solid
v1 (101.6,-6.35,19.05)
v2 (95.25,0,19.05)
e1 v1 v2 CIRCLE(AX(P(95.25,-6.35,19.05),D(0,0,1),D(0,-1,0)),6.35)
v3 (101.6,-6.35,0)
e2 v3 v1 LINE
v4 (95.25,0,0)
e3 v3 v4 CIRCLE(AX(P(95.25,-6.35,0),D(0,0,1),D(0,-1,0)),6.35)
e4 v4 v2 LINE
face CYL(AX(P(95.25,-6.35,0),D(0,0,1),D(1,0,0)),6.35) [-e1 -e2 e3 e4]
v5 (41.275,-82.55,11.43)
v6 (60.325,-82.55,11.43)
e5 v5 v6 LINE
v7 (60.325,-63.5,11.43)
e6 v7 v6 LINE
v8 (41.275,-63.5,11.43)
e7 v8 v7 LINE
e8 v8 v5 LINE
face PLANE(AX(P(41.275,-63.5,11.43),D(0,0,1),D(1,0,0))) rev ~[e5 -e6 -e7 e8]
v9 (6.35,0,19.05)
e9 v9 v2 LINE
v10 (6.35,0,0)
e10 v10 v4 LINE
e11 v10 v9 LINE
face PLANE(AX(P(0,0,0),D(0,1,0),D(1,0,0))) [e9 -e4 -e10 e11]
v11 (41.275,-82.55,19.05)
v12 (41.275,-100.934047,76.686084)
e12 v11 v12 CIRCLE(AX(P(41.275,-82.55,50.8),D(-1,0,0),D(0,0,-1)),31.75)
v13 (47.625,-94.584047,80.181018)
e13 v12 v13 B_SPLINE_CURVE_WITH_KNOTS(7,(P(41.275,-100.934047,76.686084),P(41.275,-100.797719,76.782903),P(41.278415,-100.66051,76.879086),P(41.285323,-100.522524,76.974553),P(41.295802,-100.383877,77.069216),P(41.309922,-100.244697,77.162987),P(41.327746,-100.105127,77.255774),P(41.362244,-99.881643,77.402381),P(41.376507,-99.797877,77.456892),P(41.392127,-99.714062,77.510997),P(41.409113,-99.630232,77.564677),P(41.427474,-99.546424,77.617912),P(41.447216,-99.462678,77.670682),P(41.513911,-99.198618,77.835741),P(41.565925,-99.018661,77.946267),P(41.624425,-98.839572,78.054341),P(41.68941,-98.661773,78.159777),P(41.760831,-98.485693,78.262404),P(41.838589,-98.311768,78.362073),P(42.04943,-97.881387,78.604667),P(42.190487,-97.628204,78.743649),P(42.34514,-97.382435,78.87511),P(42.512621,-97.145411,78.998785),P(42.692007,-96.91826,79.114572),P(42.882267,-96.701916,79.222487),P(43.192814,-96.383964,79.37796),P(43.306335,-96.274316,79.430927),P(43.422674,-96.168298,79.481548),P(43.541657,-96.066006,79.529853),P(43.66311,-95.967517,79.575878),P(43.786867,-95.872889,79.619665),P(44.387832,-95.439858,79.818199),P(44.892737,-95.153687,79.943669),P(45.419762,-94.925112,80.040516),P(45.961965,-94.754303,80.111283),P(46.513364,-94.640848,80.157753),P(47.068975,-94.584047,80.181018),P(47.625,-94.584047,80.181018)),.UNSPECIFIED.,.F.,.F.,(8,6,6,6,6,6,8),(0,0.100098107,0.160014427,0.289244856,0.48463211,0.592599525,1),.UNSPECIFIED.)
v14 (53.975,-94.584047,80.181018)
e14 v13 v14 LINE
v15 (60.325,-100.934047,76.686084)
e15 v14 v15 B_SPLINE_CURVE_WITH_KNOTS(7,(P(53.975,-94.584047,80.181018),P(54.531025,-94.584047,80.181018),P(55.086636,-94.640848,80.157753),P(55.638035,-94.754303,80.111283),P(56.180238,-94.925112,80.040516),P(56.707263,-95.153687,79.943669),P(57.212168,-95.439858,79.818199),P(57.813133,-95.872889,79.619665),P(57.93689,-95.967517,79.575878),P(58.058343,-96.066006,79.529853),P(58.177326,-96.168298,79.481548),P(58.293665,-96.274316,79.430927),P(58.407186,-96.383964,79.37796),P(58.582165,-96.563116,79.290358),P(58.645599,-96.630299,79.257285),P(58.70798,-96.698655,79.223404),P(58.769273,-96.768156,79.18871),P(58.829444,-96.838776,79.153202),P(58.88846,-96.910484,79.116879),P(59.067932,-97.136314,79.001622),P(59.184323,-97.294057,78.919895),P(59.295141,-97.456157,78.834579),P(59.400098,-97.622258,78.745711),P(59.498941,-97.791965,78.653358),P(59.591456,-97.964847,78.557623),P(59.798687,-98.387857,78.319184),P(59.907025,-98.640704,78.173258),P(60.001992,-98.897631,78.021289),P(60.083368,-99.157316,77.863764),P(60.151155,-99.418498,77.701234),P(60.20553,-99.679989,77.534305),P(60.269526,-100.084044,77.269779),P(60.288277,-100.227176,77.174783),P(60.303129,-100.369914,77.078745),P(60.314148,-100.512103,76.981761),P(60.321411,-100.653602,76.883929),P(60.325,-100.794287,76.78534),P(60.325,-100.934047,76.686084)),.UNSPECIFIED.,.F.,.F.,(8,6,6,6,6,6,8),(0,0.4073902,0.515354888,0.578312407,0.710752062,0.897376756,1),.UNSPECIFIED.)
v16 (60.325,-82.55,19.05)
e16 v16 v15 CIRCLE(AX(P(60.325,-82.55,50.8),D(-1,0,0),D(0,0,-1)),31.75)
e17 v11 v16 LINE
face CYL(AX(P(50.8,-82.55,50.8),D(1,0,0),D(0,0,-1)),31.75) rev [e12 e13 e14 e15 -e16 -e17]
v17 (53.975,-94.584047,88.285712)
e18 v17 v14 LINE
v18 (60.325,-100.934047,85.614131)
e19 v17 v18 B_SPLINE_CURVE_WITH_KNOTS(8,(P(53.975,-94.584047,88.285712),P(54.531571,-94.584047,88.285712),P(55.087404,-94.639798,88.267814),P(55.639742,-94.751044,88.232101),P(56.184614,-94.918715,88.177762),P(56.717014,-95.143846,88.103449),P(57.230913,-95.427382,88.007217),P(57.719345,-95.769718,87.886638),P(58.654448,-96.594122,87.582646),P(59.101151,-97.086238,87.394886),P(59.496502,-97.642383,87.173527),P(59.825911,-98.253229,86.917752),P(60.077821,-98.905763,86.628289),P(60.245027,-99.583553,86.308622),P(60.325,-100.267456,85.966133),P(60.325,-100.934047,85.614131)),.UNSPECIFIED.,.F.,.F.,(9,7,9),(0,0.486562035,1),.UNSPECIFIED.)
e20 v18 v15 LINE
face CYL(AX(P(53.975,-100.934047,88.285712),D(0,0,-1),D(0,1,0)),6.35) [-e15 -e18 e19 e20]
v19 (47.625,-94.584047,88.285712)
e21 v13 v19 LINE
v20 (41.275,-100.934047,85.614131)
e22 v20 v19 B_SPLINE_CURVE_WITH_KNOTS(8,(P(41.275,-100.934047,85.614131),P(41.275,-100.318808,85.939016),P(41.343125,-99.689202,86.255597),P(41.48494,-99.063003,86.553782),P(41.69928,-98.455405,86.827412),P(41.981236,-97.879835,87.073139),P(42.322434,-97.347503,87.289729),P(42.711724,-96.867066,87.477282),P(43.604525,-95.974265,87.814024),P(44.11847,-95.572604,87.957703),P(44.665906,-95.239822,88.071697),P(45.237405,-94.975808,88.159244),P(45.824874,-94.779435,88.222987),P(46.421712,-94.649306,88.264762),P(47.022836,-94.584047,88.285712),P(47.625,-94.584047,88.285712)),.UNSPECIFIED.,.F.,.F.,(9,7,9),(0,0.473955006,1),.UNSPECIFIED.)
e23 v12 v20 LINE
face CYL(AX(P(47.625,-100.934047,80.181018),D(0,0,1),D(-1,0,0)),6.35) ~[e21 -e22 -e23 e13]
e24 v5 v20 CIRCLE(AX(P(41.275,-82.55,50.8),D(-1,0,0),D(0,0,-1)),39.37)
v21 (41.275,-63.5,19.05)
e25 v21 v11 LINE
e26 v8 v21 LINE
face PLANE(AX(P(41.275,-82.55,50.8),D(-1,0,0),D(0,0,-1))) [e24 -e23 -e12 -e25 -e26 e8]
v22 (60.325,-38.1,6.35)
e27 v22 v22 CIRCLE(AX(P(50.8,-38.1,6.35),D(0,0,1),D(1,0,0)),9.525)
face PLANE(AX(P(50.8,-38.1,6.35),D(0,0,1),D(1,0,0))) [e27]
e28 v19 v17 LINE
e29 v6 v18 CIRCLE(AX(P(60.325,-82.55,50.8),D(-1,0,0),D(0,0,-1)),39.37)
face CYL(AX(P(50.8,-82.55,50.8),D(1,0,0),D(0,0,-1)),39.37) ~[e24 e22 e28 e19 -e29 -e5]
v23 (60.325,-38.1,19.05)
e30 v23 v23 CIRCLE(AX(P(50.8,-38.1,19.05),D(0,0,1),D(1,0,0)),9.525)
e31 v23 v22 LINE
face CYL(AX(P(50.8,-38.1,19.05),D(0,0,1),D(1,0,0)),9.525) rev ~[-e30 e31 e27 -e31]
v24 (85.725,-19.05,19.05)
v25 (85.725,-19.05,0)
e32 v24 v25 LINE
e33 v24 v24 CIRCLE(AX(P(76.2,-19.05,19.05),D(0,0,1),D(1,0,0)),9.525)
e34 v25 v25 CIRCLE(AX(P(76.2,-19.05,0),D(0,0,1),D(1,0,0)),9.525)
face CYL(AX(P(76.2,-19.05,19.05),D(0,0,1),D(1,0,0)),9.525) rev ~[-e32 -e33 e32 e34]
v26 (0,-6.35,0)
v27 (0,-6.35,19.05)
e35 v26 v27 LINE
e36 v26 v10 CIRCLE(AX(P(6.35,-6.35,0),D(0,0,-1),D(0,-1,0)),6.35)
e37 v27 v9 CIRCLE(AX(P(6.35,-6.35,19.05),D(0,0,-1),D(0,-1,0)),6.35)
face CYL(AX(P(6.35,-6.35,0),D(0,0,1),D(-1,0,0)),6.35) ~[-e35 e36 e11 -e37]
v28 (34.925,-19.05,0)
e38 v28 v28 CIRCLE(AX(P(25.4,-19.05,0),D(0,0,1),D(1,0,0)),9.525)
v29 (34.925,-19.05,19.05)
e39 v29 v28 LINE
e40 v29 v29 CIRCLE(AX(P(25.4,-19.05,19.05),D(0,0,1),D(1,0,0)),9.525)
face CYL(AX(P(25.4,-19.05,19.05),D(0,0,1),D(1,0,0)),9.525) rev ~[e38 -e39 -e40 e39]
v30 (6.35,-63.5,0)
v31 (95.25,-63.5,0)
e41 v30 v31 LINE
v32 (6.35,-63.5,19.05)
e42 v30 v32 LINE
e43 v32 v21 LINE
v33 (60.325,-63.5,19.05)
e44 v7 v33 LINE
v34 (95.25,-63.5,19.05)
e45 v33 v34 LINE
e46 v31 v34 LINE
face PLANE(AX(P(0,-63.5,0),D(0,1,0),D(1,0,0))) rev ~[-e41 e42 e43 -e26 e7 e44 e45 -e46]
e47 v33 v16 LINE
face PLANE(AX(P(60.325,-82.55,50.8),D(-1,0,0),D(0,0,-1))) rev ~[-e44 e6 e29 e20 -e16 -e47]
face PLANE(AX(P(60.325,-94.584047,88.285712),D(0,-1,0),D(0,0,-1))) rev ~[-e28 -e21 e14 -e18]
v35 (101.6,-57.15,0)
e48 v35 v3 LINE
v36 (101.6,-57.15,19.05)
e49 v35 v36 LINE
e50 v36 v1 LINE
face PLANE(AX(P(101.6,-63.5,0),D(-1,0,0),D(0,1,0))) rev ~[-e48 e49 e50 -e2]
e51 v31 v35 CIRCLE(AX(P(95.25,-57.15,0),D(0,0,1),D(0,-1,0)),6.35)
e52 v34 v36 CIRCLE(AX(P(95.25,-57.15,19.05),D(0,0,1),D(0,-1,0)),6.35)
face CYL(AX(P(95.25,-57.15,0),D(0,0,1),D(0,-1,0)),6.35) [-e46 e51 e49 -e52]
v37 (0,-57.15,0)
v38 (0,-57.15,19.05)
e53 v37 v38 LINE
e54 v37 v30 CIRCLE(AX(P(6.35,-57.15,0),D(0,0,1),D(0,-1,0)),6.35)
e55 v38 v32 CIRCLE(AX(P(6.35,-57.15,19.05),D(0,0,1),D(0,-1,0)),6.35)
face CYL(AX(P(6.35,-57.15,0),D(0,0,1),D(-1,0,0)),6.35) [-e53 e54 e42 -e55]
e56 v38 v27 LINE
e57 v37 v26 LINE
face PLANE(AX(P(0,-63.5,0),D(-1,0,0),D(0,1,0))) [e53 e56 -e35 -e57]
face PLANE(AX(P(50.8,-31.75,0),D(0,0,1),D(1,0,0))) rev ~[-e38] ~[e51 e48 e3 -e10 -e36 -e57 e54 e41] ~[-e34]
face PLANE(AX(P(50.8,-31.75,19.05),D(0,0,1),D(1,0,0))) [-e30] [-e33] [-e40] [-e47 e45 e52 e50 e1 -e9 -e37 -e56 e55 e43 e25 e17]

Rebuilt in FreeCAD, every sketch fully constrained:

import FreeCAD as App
import Part
import Sketcher
from FreeCAD import Vector
Q = App.Units.Quantity


def edges_at(feature, points):
    """Names of the edges that pass closest to the given points."""
    edges = feature.Shape.Edges
    near = lambda p: min(range(len(edges)), key=lambda i: edges[i].distToShape(Part.Vertex(*p))[0])
    return sorted({f"Edge{near(p) + 1}" for p in points})

doc = App.newDocument("Part")
body = doc.addObject("PartDesign::Body", "Body")

# Sketch on XY plane
sketch1 = body.newObject("Sketcher::SketchObject", "Sketch")
sketch1.AttachmentSupport = (doc.getObject("XY_Plane"), [""])
sketch1.MapMode = "FlatFace"
sketch1.addGeometry(Part.LineSegment(Vector(0, 0, 0), Vector(0, -64, 0)), False)
sketch1.addGeometry(Part.LineSegment(Vector(0, -64, 0), Vector(102, -64, 0)), False)
sketch1.addGeometry(Part.LineSegment(Vector(102, -64, 0), Vector(102, 0, 0)), False)
sketch1.addGeometry(Part.LineSegment(Vector(102, 0, 0), Vector(0, 0, 0)), False)
sketch1.addConstraint(Sketcher.Constraint("Coincident", 0, 2, 1, 1))
sketch1.addConstraint(Sketcher.Constraint("Coincident", 1, 2, 2, 1))
sketch1.addConstraint(Sketcher.Constraint("Coincident", 2, 2, 3, 1))
sketch1.addConstraint(Sketcher.Constraint("Coincident", 3, 2, 0, 1))
sketch1.addConstraint(Sketcher.Constraint("Vertical", 0))
sketch1.addConstraint(Sketcher.Constraint("Horizontal", 1))
sketch1.addConstraint(Sketcher.Constraint("Vertical", 2))
sketch1.addConstraint(Sketcher.Constraint("Horizontal", 3))
sketch1.addConstraint(Sketcher.Constraint("Coincident", 3, 2, -1, 1))
sketch1.addConstraint(Sketcher.Constraint("DistanceX", 1, 1, 1, 2, Q("4 in")))
sketch1.addConstraint(Sketcher.Constraint("DistanceY", 0, 2, 0, 1, Q("2.5 in")))
pad1 = body.newObject("PartDesign::Pad", "Pad")
pad1.Profile = sketch1
pad1.Length = Q("0.75 in")
doc.recompute()

fillet = body.newObject("PartDesign::Fillet", "Fillet")
fillet.Base = (pad1, edges_at(pad1, [
    (101.6, -63.5, 9.525),
    (101.6, 0, 9.525),
    (0, -63.5, 9.525),
    (0, 0, 9.525),
]))
fillet.Radius = Q("0.25 in")

# Sketch on XY plane
sketch2 = body.newObject("Sketcher::SketchObject", "Sketch001")
sketch2.AttachmentSupport = (doc.getObject("XY_Plane"), [""])
sketch2.MapMode = "FlatFace"
sketch2.AttachmentOffset = App.Placement(Vector(0, 0, 0.75 * 25.4), App.Rotation())
sketch2.addGeometry(Part.Circle(Vector(51, -38, 0), Vector(0, 0, 1), 10), False)
sketch2.addConstraint(Sketcher.Constraint("Diameter", 0, Q("0.75 in")))
sketch2.addConstraint(Sketcher.Constraint("DistanceX", -1, 1, 0, 3, Q("2 in")))
sketch2.addConstraint(Sketcher.Constraint("DistanceY", 0, 3, -1, 1, Q("1.5 in")))
pocket1 = body.newObject("PartDesign::Pocket", "Pocket")
pocket1.Profile = sketch2
pocket1.Length = Q("0.5 in")

# Sketch on XY plane
sketch3 = body.newObject("Sketcher::SketchObject", "Sketch002")
sketch3.AttachmentSupport = (doc.getObject("XY_Plane"), [""])
sketch3.MapMode = "FlatFace"
sketch3.AttachmentOffset = App.Placement(Vector(0, 0, 0.75 * 25.4), App.Rotation())
sketch3.addGeometry(Part.Circle(Vector(25, -19, 0), Vector(0, 0, 1), 10), False)
sketch3.addGeometry(Part.Circle(Vector(76, -19, 0), Vector(0, 0, 1), 10), False)
sketch3.addConstraint(Sketcher.Constraint("Equal", 0, 1))
sketch3.addConstraint(Sketcher.Constraint("Horizontal", 0, 3, 1, 3))
sketch3.addConstraint(Sketcher.Constraint("Diameter", 0, Q("0.75 in")))
sketch3.addConstraint(Sketcher.Constraint("DistanceX", -1, 1, 0, 3, Q("1 in")))
sketch3.addConstraint(Sketcher.Constraint("DistanceX", -1, 1, 1, 3, Q("3 in")))
sketch3.addConstraint(Sketcher.Constraint("DistanceY", 0, 3, -1, 1, Q("0.75 in")))
pocket2 = body.newObject("PartDesign::Pocket", "Pocket001")
pocket2.Profile = sketch3
pocket2.Type = "ThroughAll"

# Sketch on XZ plane
sketch4 = body.newObject("Sketcher::SketchObject", "Sketch003")
sketch4.AttachmentSupport = (doc.getObject("XZ_Plane"), [""])
sketch4.MapMode = "FlatFace"
sketch4.AttachmentOffset = App.Placement(Vector(0, 0, 2.5 * 25.4), App.Rotation())
sketch4.addGeometry(Part.LineSegment(Vector(41, 19, 0), Vector(41, 11, 0)), False)
sketch4.addGeometry(Part.LineSegment(Vector(41, 11, 0), Vector(60, 11, 0)), False)
sketch4.addGeometry(Part.LineSegment(Vector(60, 11, 0), Vector(60, 19, 0)), False)
sketch4.addGeometry(Part.LineSegment(Vector(60, 19, 0), Vector(41, 19, 0)), False)
sketch4.addConstraint(Sketcher.Constraint("Coincident", 0, 2, 1, 1))
sketch4.addConstraint(Sketcher.Constraint("Coincident", 1, 2, 2, 1))
sketch4.addConstraint(Sketcher.Constraint("Coincident", 2, 2, 3, 1))
sketch4.addConstraint(Sketcher.Constraint("Coincident", 3, 2, 0, 1))
sketch4.addConstraint(Sketcher.Constraint("Vertical", 0))
sketch4.addConstraint(Sketcher.Constraint("Horizontal", 1))
sketch4.addConstraint(Sketcher.Constraint("Vertical", 2))
sketch4.addConstraint(Sketcher.Constraint("Horizontal", 3))
sketch4.addConstraint(Sketcher.Constraint("DistanceY", 0, 2, 0, 1, Q("0.3 in")))
sketch4.addConstraint(Sketcher.Constraint("DistanceX", 1, 1, 1, 2, Q("0.75 in")))
sketch4.addConstraint(Sketcher.Constraint("DistanceY", -1, 1, 0, 2, Q("0.45 in")))
sketch4.addConstraint(Sketcher.Constraint("DistanceX", -1, 1, 0, 2, Q("1.625 in")))
pad2 = body.newObject("PartDesign::Pad", "Pad001")
pad2.Profile = sketch4
pad2.Length = Q("0.75 in")

# Sketch on XZ plane
sketch5 = body.newObject("Sketcher::SketchObject", "Sketch004")
sketch5.AttachmentSupport = (doc.getObject("XZ_Plane"), [""])
sketch5.MapMode = "FlatFace"
sketch5.AttachmentOffset = App.Placement(Vector(0, 0, 3.25 * 25.4), App.Rotation())
sketch5.addGeometry(Part.LineSegment(Vector(41, 19, 0), Vector(41, 11, 0)), False)
sketch5.addGeometry(Part.LineSegment(Vector(41, 11, 0), Vector(60, 11, 0)), False)
sketch5.addGeometry(Part.LineSegment(Vector(60, 11, 0), Vector(60, 19, 0)), False)
sketch5.addGeometry(Part.LineSegment(Vector(60, 19, 0), Vector(41, 19, 0)), False)
sketch5.addGeometry(Part.LineSegment(Vector(60, 51, 0), Vector(41, 51, 0)), True)  # axis
sketch5.addConstraint(Sketcher.Constraint("Coincident", 0, 2, 1, 1))
sketch5.addConstraint(Sketcher.Constraint("Coincident", 1, 2, 2, 1))
sketch5.addConstraint(Sketcher.Constraint("Coincident", 2, 2, 3, 1))
sketch5.addConstraint(Sketcher.Constraint("Coincident", 3, 2, 0, 1))
sketch5.addConstraint(Sketcher.Constraint("Vertical", 0))
sketch5.addConstraint(Sketcher.Constraint("Horizontal", 1))
sketch5.addConstraint(Sketcher.Constraint("Vertical", 2))
sketch5.addConstraint(Sketcher.Constraint("Horizontal", 3))
sketch5.addConstraint(Sketcher.Constraint("Horizontal", 4))
sketch5.addConstraint(Sketcher.Constraint("Vertical", 2, 2, 4, 1))
sketch5.addConstraint(Sketcher.Constraint("Vertical", 3, 2, 4, 2))
sketch5.addConstraint(Sketcher.Constraint("DistanceY", 0, 2, 0, 1, Q("0.3 in")))
sketch5.addConstraint(Sketcher.Constraint("DistanceY", -1, 1, 4, 1, Q("2 in")))
sketch5.addConstraint(Sketcher.Constraint("DistanceX", 1, 1, 1, 2, Q("0.75 in")))
sketch5.addConstraint(Sketcher.Constraint("DistanceY", -1, 1, 0, 2, Q("0.45 in")))
sketch5.addConstraint(Sketcher.Constraint("DistanceX", -1, 1, 0, 2, Q("1.625 in")))
revolution = body.newObject("PartDesign::Revolution", "Revolution")
revolution.Profile = sketch5
revolution.ReferenceAxis = (sketch5, ["Axis0"])
revolution.Angle = 162.2018

# Sketch on YZ plane
sketch6 = body.newObject("Sketcher::SketchObject", "Sketch005")
sketch6.AttachmentSupport = (doc.getObject("YZ_Plane"), [""])
sketch6.MapMode = "FlatFace"
sketch6.AttachmentOffset = App.Placement(Vector(0, 0, 2.375 * 25.4), App.Rotation())
sketch6.addGeometry(Part.LineSegment(Vector(-95, 88, 0), Vector(-95, 77, 0)), False)
sketch6.addGeometry(Part.LineSegment(Vector(-95, 77, 0), Vector(-87, 77, 0)), False)
sketch6.addGeometry(Part.LineSegment(Vector(-87, 77, 0), Vector(-87, 88, 0)), False)
sketch6.addGeometry(Part.LineSegment(Vector(-87, 88, 0), Vector(-95, 88, 0)), False)
sketch6.addConstraint(Sketcher.Constraint("Coincident", 0, 2, 1, 1))
sketch6.addConstraint(Sketcher.Constraint("Coincident", 1, 2, 2, 1))
sketch6.addConstraint(Sketcher.Constraint("Coincident", 2, 2, 3, 1))
sketch6.addConstraint(Sketcher.Constraint("Coincident", 3, 2, 0, 1))
sketch6.addConstraint(Sketcher.Constraint("Vertical", 0))
sketch6.addConstraint(Sketcher.Constraint("Horizontal", 1))
sketch6.addConstraint(Sketcher.Constraint("Vertical", 2))
sketch6.addConstraint(Sketcher.Constraint("Horizontal", 3))
sketch6.addConstraint(Sketcher.Constraint("DistanceX", 1, 1, 1, 2, 7.947302))
sketch6.addConstraint(Sketcher.Constraint("DistanceY", 0, 2, 0, 1, 11.615803))
sketch6.addConstraint(Sketcher.Constraint("DistanceY", -1, 1, 0, 2, 76.669909))
sketch6.addConstraint(Sketcher.Constraint("DistanceX", 0, 2, -1, 1, 94.584047))
pocket3 = body.newObject("PartDesign::Pocket", "Pocket002")
pocket3.Profile = sketch6
pocket3.Length = Q("1 in")
doc.recompute()

fillet2 = body.newObject("PartDesign::Fillet", "Fillet001")
fillet2.Base = (pocket3, edges_at(pocket3, [(60.325, -94.584, 84.233), (41.275, -94.584, 84.233)]))
fillet2.Radius = Q("0.25 in")

doc.recompute()
